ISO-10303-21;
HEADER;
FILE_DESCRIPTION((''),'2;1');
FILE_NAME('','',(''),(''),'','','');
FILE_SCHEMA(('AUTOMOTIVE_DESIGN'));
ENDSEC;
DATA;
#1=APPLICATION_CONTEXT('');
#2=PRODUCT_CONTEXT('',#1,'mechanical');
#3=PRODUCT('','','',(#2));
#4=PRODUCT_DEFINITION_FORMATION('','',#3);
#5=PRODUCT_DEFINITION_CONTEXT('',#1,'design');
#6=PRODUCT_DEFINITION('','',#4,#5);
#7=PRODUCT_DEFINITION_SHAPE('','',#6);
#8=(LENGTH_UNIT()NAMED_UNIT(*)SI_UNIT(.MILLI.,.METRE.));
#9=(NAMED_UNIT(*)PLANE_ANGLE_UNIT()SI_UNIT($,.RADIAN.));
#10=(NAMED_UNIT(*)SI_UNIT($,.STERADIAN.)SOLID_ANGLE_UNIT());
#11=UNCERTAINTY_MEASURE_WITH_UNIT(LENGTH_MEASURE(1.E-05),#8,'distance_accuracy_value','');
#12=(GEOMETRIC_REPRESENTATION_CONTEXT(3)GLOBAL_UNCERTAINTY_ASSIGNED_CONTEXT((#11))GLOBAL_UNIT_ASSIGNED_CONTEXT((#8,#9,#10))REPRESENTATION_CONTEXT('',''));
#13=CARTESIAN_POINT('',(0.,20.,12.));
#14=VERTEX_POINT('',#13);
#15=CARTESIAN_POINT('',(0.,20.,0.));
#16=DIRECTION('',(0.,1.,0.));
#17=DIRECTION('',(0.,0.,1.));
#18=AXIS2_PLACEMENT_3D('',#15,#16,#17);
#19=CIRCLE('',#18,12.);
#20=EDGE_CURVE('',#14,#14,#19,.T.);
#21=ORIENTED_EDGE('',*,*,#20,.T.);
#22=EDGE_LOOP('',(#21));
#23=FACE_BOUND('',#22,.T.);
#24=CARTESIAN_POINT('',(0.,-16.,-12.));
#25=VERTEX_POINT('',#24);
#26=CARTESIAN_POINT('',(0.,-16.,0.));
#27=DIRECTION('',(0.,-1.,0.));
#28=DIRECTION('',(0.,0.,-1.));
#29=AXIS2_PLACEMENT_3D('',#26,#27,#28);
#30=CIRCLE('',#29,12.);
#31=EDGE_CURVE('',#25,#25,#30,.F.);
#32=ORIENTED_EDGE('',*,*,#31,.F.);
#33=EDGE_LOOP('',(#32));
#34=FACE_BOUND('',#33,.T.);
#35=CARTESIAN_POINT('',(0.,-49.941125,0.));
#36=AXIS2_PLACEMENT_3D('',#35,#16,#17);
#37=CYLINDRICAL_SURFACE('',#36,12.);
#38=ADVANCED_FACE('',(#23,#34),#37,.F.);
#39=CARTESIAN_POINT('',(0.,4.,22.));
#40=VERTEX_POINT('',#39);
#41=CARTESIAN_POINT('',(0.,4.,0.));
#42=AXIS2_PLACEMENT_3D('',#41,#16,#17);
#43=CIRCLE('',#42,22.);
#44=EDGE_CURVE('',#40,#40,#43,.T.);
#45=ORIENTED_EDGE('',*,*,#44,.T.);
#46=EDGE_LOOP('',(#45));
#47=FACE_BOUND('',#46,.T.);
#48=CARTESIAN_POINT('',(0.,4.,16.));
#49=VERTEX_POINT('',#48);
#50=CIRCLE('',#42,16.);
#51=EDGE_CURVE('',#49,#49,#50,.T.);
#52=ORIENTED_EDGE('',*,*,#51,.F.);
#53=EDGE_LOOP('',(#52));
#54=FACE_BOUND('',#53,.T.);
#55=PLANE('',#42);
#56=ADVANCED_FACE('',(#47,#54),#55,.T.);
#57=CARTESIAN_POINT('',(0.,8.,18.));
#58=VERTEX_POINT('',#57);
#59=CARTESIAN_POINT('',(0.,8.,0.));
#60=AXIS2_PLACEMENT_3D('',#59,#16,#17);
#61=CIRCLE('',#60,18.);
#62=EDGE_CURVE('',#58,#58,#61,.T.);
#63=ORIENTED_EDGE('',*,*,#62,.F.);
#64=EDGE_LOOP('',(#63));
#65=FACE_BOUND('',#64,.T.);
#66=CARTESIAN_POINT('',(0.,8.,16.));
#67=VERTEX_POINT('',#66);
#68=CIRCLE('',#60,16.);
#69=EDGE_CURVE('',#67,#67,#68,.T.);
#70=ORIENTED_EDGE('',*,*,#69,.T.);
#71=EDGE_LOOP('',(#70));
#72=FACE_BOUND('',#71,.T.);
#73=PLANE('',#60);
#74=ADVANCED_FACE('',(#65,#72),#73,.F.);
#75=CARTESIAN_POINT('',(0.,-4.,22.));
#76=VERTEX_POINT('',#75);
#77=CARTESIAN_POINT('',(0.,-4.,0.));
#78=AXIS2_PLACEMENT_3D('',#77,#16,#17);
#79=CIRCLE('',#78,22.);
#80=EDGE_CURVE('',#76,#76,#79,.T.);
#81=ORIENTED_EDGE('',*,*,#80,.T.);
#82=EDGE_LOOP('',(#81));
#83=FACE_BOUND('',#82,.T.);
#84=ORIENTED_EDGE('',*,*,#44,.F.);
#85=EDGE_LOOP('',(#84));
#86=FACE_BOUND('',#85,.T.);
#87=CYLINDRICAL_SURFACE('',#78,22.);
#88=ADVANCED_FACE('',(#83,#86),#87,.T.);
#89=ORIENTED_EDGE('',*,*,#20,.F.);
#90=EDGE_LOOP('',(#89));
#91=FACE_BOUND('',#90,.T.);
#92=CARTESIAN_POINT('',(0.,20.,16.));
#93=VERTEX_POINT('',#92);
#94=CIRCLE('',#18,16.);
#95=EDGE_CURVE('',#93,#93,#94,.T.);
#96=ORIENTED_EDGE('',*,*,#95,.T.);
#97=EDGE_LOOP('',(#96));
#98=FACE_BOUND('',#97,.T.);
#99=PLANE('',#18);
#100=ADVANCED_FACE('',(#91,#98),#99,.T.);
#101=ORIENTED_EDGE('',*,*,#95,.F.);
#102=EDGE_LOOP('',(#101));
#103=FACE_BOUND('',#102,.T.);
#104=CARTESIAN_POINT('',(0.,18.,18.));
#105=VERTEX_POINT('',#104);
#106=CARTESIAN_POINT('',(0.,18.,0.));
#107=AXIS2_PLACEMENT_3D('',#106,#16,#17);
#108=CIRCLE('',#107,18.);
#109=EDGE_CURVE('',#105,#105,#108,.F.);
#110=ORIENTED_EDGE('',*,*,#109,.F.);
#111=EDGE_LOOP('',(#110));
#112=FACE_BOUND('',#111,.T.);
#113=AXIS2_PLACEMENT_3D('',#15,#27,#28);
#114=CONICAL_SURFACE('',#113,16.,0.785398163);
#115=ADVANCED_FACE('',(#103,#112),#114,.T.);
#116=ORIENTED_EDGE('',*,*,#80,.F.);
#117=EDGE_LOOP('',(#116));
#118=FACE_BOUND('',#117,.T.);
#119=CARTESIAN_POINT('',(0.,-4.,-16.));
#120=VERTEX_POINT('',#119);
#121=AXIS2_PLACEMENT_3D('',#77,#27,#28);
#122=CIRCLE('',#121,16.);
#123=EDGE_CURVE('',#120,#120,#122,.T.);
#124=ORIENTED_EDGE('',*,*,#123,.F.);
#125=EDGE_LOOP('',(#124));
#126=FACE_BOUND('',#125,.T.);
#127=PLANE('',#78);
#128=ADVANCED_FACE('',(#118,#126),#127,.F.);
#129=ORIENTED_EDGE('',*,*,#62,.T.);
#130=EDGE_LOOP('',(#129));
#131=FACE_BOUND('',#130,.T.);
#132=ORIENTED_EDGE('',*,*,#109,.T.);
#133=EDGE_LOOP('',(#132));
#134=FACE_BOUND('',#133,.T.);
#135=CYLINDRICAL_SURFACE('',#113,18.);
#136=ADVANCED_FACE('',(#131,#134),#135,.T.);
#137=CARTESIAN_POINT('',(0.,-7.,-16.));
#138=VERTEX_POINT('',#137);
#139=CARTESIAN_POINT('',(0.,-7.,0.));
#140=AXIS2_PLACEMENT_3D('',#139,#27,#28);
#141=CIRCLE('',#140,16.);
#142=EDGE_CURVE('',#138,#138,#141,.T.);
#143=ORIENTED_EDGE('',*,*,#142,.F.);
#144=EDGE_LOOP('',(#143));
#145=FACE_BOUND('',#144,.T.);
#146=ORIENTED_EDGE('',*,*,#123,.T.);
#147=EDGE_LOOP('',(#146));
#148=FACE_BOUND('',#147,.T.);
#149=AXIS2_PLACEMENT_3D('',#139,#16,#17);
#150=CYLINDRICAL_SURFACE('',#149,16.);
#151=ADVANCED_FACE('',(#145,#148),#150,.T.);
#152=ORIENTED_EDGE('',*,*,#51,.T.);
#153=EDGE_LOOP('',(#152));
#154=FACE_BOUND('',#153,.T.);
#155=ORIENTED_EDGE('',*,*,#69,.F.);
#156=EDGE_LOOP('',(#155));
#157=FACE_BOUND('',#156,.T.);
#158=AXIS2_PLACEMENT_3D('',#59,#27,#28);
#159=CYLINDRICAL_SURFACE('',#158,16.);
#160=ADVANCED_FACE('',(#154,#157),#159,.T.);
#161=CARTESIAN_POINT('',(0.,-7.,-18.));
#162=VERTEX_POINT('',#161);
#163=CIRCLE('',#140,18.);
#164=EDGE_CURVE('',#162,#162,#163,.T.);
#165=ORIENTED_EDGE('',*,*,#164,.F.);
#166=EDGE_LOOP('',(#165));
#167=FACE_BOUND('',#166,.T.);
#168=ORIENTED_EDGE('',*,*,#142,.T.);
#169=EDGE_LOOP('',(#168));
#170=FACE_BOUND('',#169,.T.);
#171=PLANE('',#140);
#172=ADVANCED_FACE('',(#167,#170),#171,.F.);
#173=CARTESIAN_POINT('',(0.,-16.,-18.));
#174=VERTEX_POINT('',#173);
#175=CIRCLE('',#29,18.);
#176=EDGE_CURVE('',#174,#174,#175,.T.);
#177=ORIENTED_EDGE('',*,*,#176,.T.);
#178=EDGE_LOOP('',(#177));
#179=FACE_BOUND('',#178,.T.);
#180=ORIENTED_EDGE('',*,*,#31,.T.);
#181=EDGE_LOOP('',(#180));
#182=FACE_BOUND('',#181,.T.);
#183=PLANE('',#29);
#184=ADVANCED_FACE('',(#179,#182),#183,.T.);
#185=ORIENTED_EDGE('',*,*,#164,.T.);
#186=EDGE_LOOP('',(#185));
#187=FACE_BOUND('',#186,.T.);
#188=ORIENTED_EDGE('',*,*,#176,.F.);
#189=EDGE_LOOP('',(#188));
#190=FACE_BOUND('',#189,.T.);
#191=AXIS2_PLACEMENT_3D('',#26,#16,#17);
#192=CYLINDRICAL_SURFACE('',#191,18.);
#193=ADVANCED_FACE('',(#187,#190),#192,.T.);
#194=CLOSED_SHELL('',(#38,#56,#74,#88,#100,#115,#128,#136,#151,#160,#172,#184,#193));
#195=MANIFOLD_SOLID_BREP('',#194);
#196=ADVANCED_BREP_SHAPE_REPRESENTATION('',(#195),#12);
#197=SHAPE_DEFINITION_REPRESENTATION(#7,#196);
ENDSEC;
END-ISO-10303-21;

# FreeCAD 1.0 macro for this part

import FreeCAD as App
import Part
import Sketcher

V = App.Vector


def edges_at(feature, points):
    """Names of the edges that pass closest to the given points."""
    edges = feature.Shape.Edges
    near = lambda p: min(range(len(edges)), key=lambda i: edges[i].distToShape(Part.Vertex(*p))[0])
    return sorted({f"Edge{near(p) + 1}" for p in points})

doc = App.newDocument("Part")
body = doc.addObject("PartDesign::Body", "Body")

sketch1 = body.newObject("Sketcher::SketchObject", "Sketch")
sketch1.AttachmentSupport = (doc.getObject("XZ_Plane"), [""])
sketch1.MapMode = "FlatFace"
sketch1.addGeometry(Part.Circle(V(0, 0, 0), V(0, 0, 1), 22), False)
sketch1.addConstraint([
    Sketcher.Constraint("Coincident", 0, 3, -1, 1),
    Sketcher.Constraint("Diameter", 0, 44.0),
])
pad1 = body.newObject("PartDesign::Pad", "Pad")
pad1.Profile = sketch1
pad1.Type = "TwoLengths"
pad1.Length = 4
pad1.Length2 = 4
pad1.Reversed = True

sketch2 = body.newObject("Sketcher::SketchObject", "Sketch001")
sketch2.AttachmentSupport = (doc.getObject("XZ_Plane"), [""])
sketch2.MapMode = "FlatFace"
sketch2.AttachmentOffset = App.Placement(V(0, 0, -4), App.Rotation())
sketch2.addGeometry(Part.Circle(V(0, 0, 0), V(0, 0, 1), 16), False)
sketch2.addConstraint([
    Sketcher.Constraint("Coincident", 0, 3, -1, 1),
    Sketcher.Constraint("Diameter", 0, 32.0),
])
pad2 = body.newObject("PartDesign::Pad", "Pad001")
pad2.Profile = sketch2
pad2.Length = 4
pad2.Reversed = True

sketch3 = body.newObject("Sketcher::SketchObject", "Sketch002")
sketch3.AttachmentSupport = (doc.getObject("XZ_Plane"), [""])
sketch3.MapMode = "FlatFace"
sketch3.AttachmentOffset = App.Placement(V(0, 0, -8), App.Rotation())
sketch3.addGeometry(Part.Circle(V(0, 0, 0), V(0, 0, 1), 18), False)
sketch3.addConstraint([
    Sketcher.Constraint("Coincident", 0, 3, -1, 1),
    Sketcher.Constraint("Diameter", 0, 36.0),
])
pad3 = body.newObject("PartDesign::Pad", "Pad002")
pad3.Profile = sketch3
pad3.Length = 12
pad3.Reversed = True

sketch4 = body.newObject("Sketcher::SketchObject", "Sketch003")
sketch4.AttachmentSupport = (doc.getObject("XZ_Plane"), [""])
sketch4.MapMode = "FlatFace"
sketch4.AttachmentOffset = App.Placement(V(0, 0, 7), App.Rotation())
sketch4.addGeometry(Part.Circle(V(0, 0, 0), V(0, 0, 1), 16), False)
sketch4.addConstraint([
    Sketcher.Constraint("Coincident", 0, 3, -1, 1),
    Sketcher.Constraint("Diameter", 0, 32.0),
])
pad4 = body.newObject("PartDesign::Pad", "Pad003")
pad4.Profile = sketch4
pad4.Length = 3
pad4.Reversed = True

sketch5 = body.newObject("Sketcher::SketchObject", "Sketch004")
sketch5.AttachmentSupport = (doc.getObject("XZ_Plane"), [""])
sketch5.MapMode = "FlatFace"
sketch5.AttachmentOffset = App.Placement(V(0, 0, 16), App.Rotation())
sketch5.addGeometry(Part.Circle(V(0, 0, 0), V(0, 0, 1), 18), False)
sketch5.addConstraint([
    Sketcher.Constraint("Coincident", 0, 3, -1, 1),
    Sketcher.Constraint("Diameter", 0, 36.0),
])
pad5 = body.newObject("PartDesign::Pad", "Pad004")
pad5.Profile = sketch5
pad5.Length = 9
pad5.Reversed = True
doc.recompute()

chamfer = body.newObject("PartDesign::Chamfer", "Chamfer")
chamfer.Base = (pad5, edges_at(pad5, [(0, 20, -18)]))
chamfer.Size = 2

sketch6 = body.newObject("Sketcher::SketchObject", "Sketch005")
sketch6.AttachmentSupport = (doc.getObject("XZ_Plane"), [""])
sketch6.MapMode = "FlatFace"
sketch6.AttachmentOffset = App.Placement(V(0, 0, -20), App.Rotation())
sketch6.addGeometry(Part.Circle(V(0, 0, 0), V(0, 0, 1), 12), False)
sketch6.addConstraint([
    Sketcher.Constraint("Coincident", 0, 3, -1, 1),
    Sketcher.Constraint("Diameter", 0, 24.0),
])
pocket1 = body.newObject("PartDesign::Pocket", "Pocket")
pocket1.Profile = sketch6
pocket1.Length = 36
pocket1.Reversed = True

doc.recompute()
